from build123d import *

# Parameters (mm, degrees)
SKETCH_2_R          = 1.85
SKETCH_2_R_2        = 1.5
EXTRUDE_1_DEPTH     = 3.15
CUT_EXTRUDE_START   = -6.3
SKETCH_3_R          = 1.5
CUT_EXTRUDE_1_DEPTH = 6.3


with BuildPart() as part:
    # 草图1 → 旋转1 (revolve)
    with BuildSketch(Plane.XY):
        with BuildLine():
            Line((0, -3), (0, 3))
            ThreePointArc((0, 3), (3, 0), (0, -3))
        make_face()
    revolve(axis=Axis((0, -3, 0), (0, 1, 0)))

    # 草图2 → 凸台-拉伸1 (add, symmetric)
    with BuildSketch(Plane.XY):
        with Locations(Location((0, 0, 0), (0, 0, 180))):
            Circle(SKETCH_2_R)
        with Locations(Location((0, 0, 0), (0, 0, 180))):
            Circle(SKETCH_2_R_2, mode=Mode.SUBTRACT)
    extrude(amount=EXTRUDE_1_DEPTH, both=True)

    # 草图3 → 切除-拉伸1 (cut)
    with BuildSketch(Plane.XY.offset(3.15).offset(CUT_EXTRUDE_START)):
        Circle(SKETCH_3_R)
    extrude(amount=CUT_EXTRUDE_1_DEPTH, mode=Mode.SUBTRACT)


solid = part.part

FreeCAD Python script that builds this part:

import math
import FreeCAD as App
import Part
import Sketcher
from FreeCAD import Vector
Q = App.Units.Quantity

doc = App.newDocument("Part")
body = doc.addObject("PartDesign::Body", "Body")

# Sketch on XY plane
sketch1 = doc.addObject("Sketcher::SketchObject", "Sketch")
body.addObject(sketch1)
sketch1.AttachmentSupport = (doc.XY_Plane, [""])
sketch1.MapMode = "FlatFace"
sketch1.addGeometry(Part.LineSegment(Vector(0, 3, 0), Vector(0, -3, 0)), False)
sketch1.addGeometry(Part.ArcOfCircle(Part.Circle(Vector(0, 0, 0), Vector(0, 0, 1), 3), math.radians(-90), math.radians(90)), False)
sketch1.addConstraint(Sketcher.Constraint("Coincident", 0, 1, 1, 2))
sketch1.addConstraint(Sketcher.Constraint("Coincident", 1, 1, 0, 2))
sketch1.addConstraint(Sketcher.Constraint("Vertical", 0))
sketch1.addConstraint(Sketcher.Constraint("Coincident", 1, 3, -1, 1))
sketch1.addConstraint(Sketcher.Constraint("PointOnObject", 0, 1, -2))
sketch1.addConstraint(Sketcher.Constraint("Radius", 1, Q("3 mm")))
revolution = doc.addObject("PartDesign::Revolution", "Revolution")
body.addObject(revolution)
revolution.Profile = sketch1
revolution.ReferenceAxis = (sketch1, ["V_Axis"])
revolution.Angle = 360

# Sketch on XY plane
sketch2 = doc.addObject("Sketcher::SketchObject", "Sketch001")
body.addObject(sketch2)
sketch2.AttachmentSupport = (doc.XY_Plane, [""])
sketch2.MapMode = "FlatFace"
sketch2.addGeometry(Part.Circle(Vector(0, 0, 0), Vector(0, 0, 1), 1.85), False)
sketch2.addGeometry(Part.Circle(Vector(0, 0, 0), Vector(0, 0, 1), 1.5), False)
sketch2.addConstraint(Sketcher.Constraint("Coincident", 0, 3, -1, 1))
sketch2.addConstraint(Sketcher.Constraint("Coincident", 1, 3, -1, 1))
sketch2.addConstraint(Sketcher.Constraint("Diameter", 1, Q("3 mm")))
sketch2.addConstraint(Sketcher.Constraint("Diameter", 0, Q("3.7 mm")))
pad1 = doc.addObject("PartDesign::Pad", "Pad")
body.addObject(pad1)
pad1.Profile = sketch2
pad1.Length = 6.3
pad1.Midplane = True

# Sketch on XY plane
sketch3 = doc.addObject("Sketcher::SketchObject", "Sketch002")
body.addObject(sketch3)
sketch3.AttachmentSupport = (doc.XY_Plane, [""])
sketch3.MapMode = "FlatFace"
sketch3.AttachmentOffset = App.Placement(Vector(0, 0, -3.15), App.Rotation())
sketch3.addGeometry(Part.Circle(Vector(0, 0, 0), Vector(0, 0, 1), 1.5), False)
sketch3.addConstraint(Sketcher.Constraint("Coincident", 0, 3, -1, 1))
sketch3.addConstraint(Sketcher.Constraint("Diameter", 0, Q("3 mm")))
pocket1 = doc.addObject("PartDesign::Pocket", "Pocket")
body.addObject(pocket1)
pocket1.Profile = sketch3
pocket1.Length = 6.3
pocket1.Reversed = True

doc.recompute()
